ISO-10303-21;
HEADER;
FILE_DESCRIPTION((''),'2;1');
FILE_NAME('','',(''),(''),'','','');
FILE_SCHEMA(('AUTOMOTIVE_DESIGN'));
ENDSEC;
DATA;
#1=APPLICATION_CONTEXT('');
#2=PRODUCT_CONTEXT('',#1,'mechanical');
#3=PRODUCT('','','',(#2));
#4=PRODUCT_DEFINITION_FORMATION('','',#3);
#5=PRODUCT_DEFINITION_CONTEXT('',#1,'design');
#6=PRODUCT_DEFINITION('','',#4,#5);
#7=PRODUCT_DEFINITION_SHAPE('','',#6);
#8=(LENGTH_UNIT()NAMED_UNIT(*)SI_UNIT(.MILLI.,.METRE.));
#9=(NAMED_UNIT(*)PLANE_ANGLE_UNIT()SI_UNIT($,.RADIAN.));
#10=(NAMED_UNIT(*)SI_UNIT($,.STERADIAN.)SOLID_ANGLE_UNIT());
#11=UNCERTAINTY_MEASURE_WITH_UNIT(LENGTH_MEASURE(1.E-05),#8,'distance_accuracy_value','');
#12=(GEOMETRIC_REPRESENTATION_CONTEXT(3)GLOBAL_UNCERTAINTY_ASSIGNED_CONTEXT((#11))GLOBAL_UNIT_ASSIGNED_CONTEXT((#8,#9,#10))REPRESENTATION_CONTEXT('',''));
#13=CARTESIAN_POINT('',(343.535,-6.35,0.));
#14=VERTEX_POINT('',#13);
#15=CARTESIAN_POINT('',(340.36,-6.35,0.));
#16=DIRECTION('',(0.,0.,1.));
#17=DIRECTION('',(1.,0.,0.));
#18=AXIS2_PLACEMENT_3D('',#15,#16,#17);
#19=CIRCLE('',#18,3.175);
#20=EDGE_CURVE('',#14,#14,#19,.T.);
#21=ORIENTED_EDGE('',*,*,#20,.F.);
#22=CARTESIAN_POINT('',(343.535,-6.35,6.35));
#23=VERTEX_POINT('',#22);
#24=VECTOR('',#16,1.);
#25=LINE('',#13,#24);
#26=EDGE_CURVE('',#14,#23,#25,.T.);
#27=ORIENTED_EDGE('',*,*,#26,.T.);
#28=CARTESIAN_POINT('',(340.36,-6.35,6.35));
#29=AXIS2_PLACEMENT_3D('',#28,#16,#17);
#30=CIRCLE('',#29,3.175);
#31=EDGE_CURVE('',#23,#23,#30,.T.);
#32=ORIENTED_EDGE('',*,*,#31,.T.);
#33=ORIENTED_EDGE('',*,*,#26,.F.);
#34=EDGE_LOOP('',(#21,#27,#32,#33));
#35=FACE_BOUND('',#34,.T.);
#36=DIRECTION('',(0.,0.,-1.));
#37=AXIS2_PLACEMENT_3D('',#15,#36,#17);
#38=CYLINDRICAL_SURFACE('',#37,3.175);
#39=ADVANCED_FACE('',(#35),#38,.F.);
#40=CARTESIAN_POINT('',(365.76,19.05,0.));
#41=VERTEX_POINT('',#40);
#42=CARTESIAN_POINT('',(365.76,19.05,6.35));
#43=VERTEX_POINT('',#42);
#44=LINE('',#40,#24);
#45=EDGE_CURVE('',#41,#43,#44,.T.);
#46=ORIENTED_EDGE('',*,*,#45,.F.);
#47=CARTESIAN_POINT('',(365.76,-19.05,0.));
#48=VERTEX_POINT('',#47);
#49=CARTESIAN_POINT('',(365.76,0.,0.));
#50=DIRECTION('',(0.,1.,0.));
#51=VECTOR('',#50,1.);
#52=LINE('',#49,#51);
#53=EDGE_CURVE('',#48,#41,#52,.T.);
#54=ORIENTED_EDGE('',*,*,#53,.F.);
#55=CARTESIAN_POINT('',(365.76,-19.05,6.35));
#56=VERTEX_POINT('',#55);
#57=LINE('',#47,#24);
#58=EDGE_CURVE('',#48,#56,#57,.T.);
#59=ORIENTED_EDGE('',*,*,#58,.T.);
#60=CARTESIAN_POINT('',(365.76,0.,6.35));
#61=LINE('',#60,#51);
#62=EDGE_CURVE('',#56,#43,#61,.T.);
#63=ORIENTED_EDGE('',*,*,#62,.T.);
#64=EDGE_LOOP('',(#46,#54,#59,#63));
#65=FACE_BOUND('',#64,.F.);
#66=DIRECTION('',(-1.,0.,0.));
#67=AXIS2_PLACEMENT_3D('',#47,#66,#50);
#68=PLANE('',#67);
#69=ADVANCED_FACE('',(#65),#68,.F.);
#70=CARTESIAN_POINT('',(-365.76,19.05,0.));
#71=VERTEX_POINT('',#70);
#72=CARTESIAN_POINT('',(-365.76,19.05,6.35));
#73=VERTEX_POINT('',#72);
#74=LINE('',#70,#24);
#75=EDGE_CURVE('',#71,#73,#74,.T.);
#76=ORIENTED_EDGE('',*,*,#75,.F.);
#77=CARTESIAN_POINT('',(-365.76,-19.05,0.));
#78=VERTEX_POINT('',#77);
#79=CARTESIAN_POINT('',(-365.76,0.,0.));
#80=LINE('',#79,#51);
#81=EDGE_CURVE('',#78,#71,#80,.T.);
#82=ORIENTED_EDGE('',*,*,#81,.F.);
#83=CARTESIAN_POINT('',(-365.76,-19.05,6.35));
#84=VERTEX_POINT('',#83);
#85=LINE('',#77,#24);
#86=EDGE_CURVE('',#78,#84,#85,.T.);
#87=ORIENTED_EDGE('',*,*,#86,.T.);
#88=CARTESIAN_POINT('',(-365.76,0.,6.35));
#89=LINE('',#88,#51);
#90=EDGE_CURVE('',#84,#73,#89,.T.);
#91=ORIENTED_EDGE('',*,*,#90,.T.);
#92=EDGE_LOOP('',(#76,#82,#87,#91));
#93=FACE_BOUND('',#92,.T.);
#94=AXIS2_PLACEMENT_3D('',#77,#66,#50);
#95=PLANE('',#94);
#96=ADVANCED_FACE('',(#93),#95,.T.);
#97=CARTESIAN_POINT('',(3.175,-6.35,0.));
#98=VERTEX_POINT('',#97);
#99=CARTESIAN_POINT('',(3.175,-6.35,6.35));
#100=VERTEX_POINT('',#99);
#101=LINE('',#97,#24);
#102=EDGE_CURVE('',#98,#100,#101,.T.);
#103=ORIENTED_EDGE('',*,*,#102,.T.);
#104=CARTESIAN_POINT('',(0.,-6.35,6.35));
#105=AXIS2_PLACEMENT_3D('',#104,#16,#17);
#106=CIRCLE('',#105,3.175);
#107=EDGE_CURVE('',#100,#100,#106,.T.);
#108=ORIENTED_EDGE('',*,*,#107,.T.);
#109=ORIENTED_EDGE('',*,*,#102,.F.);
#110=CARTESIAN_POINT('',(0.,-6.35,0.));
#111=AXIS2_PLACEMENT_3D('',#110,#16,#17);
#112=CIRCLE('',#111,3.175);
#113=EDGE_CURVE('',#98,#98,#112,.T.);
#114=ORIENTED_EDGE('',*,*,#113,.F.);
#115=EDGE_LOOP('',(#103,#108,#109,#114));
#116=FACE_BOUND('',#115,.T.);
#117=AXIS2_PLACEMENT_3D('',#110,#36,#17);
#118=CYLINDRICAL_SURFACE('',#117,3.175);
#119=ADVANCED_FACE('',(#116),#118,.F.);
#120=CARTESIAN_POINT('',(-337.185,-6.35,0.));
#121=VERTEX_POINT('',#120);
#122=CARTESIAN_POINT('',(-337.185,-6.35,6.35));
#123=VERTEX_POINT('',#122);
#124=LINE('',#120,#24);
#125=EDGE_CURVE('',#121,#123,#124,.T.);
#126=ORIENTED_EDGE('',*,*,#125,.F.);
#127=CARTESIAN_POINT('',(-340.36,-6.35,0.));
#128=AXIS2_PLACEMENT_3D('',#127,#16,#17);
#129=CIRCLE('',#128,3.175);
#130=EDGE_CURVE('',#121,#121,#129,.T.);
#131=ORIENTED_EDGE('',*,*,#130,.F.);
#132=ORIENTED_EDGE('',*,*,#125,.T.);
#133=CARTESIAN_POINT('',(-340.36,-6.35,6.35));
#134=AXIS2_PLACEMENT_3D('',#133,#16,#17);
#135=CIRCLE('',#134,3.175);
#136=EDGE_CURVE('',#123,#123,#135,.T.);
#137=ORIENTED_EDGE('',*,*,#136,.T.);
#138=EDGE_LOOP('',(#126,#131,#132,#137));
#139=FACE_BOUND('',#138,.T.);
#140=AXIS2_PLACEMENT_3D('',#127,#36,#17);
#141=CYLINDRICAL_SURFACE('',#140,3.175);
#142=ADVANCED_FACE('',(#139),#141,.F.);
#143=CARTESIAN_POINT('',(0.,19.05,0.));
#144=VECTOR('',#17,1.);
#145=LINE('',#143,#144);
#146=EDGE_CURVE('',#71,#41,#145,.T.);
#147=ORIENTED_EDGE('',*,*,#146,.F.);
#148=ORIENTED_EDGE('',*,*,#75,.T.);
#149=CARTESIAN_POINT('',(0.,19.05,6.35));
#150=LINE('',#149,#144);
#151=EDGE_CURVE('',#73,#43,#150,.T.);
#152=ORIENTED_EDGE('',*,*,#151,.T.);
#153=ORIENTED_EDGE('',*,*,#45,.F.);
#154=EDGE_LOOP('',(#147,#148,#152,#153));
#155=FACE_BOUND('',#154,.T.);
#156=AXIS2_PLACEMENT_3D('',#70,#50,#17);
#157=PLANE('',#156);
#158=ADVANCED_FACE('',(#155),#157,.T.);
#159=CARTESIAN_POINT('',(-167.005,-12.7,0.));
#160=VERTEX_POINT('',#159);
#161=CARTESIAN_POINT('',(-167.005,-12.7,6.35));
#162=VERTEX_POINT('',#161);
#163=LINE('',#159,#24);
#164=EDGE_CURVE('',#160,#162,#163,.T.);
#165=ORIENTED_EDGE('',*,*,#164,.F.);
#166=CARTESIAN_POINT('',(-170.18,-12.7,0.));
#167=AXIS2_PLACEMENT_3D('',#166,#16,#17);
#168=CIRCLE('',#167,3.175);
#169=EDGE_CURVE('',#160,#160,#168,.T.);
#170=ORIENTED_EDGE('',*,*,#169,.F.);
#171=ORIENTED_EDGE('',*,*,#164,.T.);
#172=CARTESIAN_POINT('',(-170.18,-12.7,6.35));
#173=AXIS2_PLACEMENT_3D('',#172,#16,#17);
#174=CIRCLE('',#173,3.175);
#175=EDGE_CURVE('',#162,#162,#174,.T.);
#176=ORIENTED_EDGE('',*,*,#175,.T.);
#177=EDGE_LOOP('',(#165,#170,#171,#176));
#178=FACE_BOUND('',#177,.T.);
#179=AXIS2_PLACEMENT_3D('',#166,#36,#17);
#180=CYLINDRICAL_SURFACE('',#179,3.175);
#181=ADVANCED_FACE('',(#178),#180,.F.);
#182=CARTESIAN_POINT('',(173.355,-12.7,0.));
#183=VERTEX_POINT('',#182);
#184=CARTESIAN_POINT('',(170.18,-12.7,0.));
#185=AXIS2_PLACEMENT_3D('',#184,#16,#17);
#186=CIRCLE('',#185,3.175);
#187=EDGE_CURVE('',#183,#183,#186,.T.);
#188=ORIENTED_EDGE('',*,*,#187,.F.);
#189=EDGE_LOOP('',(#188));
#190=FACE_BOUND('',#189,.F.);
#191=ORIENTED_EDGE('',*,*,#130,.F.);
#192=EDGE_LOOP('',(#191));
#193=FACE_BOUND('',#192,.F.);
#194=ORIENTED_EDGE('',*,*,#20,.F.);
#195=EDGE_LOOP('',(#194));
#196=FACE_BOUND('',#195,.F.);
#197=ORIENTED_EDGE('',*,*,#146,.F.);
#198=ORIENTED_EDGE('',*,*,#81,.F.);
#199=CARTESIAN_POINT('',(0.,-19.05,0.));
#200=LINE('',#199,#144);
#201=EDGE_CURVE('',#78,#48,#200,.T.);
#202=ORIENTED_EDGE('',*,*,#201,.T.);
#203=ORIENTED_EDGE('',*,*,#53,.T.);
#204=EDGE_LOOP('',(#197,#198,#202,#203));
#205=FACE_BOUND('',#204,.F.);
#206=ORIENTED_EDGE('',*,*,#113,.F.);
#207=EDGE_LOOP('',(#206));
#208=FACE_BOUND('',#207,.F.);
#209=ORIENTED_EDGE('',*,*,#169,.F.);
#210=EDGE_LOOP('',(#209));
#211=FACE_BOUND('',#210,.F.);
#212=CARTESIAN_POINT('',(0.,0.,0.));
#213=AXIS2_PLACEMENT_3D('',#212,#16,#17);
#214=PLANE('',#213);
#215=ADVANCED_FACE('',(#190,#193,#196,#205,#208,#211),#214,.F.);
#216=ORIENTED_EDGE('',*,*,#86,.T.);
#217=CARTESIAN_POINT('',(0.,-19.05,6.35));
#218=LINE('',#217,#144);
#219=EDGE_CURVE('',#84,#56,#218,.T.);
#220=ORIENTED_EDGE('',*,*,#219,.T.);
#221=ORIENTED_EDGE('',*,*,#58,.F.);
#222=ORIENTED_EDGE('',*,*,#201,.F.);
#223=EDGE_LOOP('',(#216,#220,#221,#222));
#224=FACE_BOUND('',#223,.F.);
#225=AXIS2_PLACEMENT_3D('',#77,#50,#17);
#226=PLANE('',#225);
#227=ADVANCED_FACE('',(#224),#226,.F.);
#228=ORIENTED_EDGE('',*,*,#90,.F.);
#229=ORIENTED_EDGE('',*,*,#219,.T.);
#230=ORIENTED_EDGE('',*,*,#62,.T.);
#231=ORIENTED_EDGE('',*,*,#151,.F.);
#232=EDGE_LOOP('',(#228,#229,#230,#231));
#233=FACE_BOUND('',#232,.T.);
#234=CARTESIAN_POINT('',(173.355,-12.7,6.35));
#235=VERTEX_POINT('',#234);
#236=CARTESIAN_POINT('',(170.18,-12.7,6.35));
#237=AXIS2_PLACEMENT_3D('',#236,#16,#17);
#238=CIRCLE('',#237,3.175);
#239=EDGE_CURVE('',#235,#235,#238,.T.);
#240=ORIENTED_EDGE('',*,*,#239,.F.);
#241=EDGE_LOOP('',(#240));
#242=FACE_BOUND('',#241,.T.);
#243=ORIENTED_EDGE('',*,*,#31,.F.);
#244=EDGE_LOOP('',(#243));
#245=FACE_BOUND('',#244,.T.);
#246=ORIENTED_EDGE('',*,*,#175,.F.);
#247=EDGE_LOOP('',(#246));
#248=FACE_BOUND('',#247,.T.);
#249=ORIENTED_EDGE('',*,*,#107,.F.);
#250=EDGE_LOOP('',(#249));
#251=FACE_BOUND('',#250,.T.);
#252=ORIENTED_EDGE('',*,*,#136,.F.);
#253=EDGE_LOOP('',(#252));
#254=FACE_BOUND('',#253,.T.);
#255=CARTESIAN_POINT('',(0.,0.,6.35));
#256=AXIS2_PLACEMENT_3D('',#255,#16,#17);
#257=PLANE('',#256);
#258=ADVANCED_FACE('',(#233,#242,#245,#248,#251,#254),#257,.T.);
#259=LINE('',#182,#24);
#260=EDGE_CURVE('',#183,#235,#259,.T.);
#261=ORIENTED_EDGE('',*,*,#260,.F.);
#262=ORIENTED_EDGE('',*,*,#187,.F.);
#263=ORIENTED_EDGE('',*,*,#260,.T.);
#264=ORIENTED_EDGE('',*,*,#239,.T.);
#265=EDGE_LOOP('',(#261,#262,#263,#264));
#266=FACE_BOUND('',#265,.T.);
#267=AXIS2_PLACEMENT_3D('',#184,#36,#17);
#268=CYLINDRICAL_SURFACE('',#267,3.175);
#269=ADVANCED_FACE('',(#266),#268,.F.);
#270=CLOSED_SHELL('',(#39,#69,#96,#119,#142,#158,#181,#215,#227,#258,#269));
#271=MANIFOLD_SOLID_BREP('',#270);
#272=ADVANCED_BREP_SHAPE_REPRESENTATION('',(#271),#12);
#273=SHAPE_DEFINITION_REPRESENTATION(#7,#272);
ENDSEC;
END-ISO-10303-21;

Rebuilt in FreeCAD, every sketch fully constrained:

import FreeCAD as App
import Part
import Sketcher

V = App.Vector
Q = App.Units.Quantity

doc = App.newDocument("Part")
body = doc.addObject("PartDesign::Body", "Body")

sketch1 = doc.addObject("Sketcher::SketchObject", "Sketch")
body.addObject(sketch1)
sketch1.AttachmentSupport = (doc.XY_Plane, [""])
sketch1.MapMode = "FlatFace"
sketch1.addGeometry([
    Part.LineSegment(V(-365.8, 19.1, 0), V(-365.8, -19.1, 0)),
    Part.LineSegment(V(-365.8, -19.1, 0), V(365.8, -19.1, 0)),
    Part.LineSegment(V(365.8, -19.1, 0), V(365.8, 19.1, 0)),
    Part.LineSegment(V(365.8, 19.1, 0), V(-365.8, 19.1, 0)),
    Part.Circle(V(-170.2, -12.7, 0), V(0, 0, 1), 3.2),
    Part.Circle(V(170.2, -12.7, 0), V(0, 0, 1), 3.2),
    Part.Circle(V(-340.4, -6.3, 0), V(0, 0, 1), 3.2),
    Part.Circle(V(0, -6.3, 0), V(0, 0, 1), 3.2),
    Part.Circle(V(340.4, -6.3, 0), V(0, 0, 1), 3.2),
], False)
sketch1.addConstraint([
    Sketcher.Constraint("Coincident", 0, 2, 1, 1),
    Sketcher.Constraint("Coincident", 1, 2, 2, 1),
    Sketcher.Constraint("Coincident", 2, 2, 3, 1),
    Sketcher.Constraint("Coincident", 3, 2, 0, 1),
    Sketcher.Constraint("Vertical", 0),
    Sketcher.Constraint("Horizontal", 1),
    Sketcher.Constraint("Vertical", 2),
    Sketcher.Constraint("Horizontal", 3),
    Sketcher.Constraint("Equal", 4, 5),
    Sketcher.Constraint("Equal", 5, 6),
    Sketcher.Constraint("Equal", 6, 7),
    Sketcher.Constraint("Equal", 7, 8),
    Sketcher.Constraint("Symmetric", 0, 2, 2, 2, -1, 1),
    Sketcher.Constraint("Symmetric", 4, 3, 5, 3, -2),
    Sketcher.Constraint("Symmetric", 6, 3, 8, 3, -2),
    Sketcher.Constraint("PointOnObject", 7, 3, -2),
    Sketcher.Constraint("Horizontal", 6, 3, 7, 3),
    Sketcher.Constraint("Diameter", 4, Q("0.25 in")),
    Sketcher.Constraint("DistanceX", 1, 1, 1, 2, Q("28.8 in")),
    Sketcher.Constraint("DistanceY", 0, 2, 0, 1, Q("1.5 in")),
    Sketcher.Constraint("DistanceX", 0, 2, 6, 3, Q("1 in")),
    Sketcher.Constraint("DistanceY", 8, 3, 2, 2, Q("1 in")),
    Sketcher.Constraint("DistanceX", 4, 3, -1, 1, Q("6.7 in")),
    Sketcher.Constraint("DistanceY", 4, 3, -1, 1, Q("0.5 in")),
])
pad1 = doc.addObject("PartDesign::Pad", "Pad")
body.addObject(pad1)
pad1.Profile = sketch1
pad1.Length = Q("0.25 in")

doc.recompute()
